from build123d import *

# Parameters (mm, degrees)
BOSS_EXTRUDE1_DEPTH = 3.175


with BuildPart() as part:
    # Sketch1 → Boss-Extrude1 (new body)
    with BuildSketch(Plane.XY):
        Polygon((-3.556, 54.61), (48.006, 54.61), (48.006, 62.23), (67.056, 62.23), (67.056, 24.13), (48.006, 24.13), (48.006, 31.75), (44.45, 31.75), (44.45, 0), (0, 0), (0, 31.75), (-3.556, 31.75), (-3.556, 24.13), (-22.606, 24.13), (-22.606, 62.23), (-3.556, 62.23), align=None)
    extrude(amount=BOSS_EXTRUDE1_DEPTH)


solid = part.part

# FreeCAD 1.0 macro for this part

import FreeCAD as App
import Part
import Sketcher
from FreeCAD import Vector
Q = App.Units.Quantity


def add_polygon(sketch, points):
    """Adds a closed chain of lines whose ends are joined by coincident constraints."""
    first, n = sketch.GeometryCount, len(points)
    for a, b in zip(points, points[1:] + points[:1]):
        sketch.addGeometry(Part.LineSegment(App.Vector(*a, 0), App.Vector(*b, 0)), False)
    for i in range(n):
        sketch.addConstraint(Sketcher.Constraint("Coincident", first + i, 2, first + (i + 1) % n, 1))

doc = App.newDocument("Part")
params = doc.addObject("Spreadsheet::Sheet", "Params")
for row, (alias, value) in enumerate([
    ("sketch1_height", "0.3 in"),
    ("sketch1_height2", "1.5 in"),
    ("sketch1_width", "2.03 in"),
    ("sketch1_width2", "0.75 in"),
    ("sketch1_width3", "0.14 in"),
    ("pad1_length", "0.125 in"),
], start=1):
    params.set(f"A{row}", alias)
    params.set(f"B{row}", "=" + value)
    params.setAlias(f"B{row}", alias)

body = doc.addObject("PartDesign::Body", "Body")

# Sketch on XY plane
sketch1 = body.newObject("Sketcher::SketchObject", "Sketch")
sketch1.AttachmentSupport = (doc.getObject("XY_Plane"), [""])
sketch1.MapMode = "FlatFace"
add_polygon(sketch1, [(48, 54.6), (-3.6, 54.6), (-3.6, 62.2), (-22.6, 62.2), (-22.6, 24.1), (-3.6, 24.1), (-3.6, 31.8), (0, 31.8), (0, 0), (44.5, 0), (44.5, 31.8), (48, 31.8), (48, 24.1), (67.1, 24.1), (67.1, 62.2), (48, 62.2)])  # lines 0-15
sketch1.addConstraint([
    Sketcher.Constraint("Horizontal", 0),
    Sketcher.Constraint("Vertical", 1),
    Sketcher.Constraint("Horizontal", 2),
    Sketcher.Constraint("Vertical", 3),
    Sketcher.Constraint("Horizontal", 4),
    Sketcher.Constraint("Vertical", 5),
    Sketcher.Constraint("Horizontal", 6),
    Sketcher.Constraint("Vertical", 7),
    Sketcher.Constraint("Horizontal", 8),
    Sketcher.Constraint("Vertical", 9),
    Sketcher.Constraint("Horizontal", 10),
    Sketcher.Constraint("Vertical", 11),
    Sketcher.Constraint("Horizontal", 12),
    Sketcher.Constraint("Vertical", 13),
    Sketcher.Constraint("Horizontal", 14),
    Sketcher.Constraint("Vertical", 15),
    Sketcher.Constraint("Coincident", 7, 2, -1, 1),
    Sketcher.Constraint("Horizontal", 6, 2, 9, 2),
    Sketcher.Constraint("Horizontal", 4, 2, 11, 2),
    Sketcher.Constraint("Horizontal", 2, 2, 13, 2),
    Sketcher.Constraint("Vertical", 1, 2, 4, 2),
    Sketcher.Constraint("Vertical", 11, 2, 14, 2),
    Sketcher.Constraint("Equal", 6, 10),
    Sketcher.Constraint("Equal", 4, 12),
    Sketcher.Constraint("Equal", 1, 5),
    Sketcher.Constraint("DistanceY", 1, 1, 1, 2, Q("0.3 in")),
    Sketcher.Constraint("DistanceY", 3, 2, 3, 1, Q("1.5 in")),
    Sketcher.Constraint("DistanceX", 0, 2, 0, 1, Q("2.03 in")),
    Sketcher.Constraint("DistanceX", 2, 2, 2, 1, Q("0.75 in")),
    Sketcher.Constraint("DistanceX", 6, 1, 6, 2, Q("0.14 in")),
    Sketcher.Constraint("DistanceY", 7, 2, 7, 1, Q("1.25 in")),
])
sketch1.setExpression("Constraints[41]", "Params.sketch1_height")
sketch1.setExpression("Constraints[42]", "Params.sketch1_height2")
sketch1.setExpression("Constraints[43]", "Params.sketch1_width")
sketch1.setExpression("Constraints[44]", "Params.sketch1_width2")
sketch1.setExpression("Constraints[45]", "Params.sketch1_width3")
pad1 = body.newObject("PartDesign::Pad", "Pad")
pad1.Profile = sketch1
pad1.setExpression("Length", "Params.pad1_length")

doc.recompute()
